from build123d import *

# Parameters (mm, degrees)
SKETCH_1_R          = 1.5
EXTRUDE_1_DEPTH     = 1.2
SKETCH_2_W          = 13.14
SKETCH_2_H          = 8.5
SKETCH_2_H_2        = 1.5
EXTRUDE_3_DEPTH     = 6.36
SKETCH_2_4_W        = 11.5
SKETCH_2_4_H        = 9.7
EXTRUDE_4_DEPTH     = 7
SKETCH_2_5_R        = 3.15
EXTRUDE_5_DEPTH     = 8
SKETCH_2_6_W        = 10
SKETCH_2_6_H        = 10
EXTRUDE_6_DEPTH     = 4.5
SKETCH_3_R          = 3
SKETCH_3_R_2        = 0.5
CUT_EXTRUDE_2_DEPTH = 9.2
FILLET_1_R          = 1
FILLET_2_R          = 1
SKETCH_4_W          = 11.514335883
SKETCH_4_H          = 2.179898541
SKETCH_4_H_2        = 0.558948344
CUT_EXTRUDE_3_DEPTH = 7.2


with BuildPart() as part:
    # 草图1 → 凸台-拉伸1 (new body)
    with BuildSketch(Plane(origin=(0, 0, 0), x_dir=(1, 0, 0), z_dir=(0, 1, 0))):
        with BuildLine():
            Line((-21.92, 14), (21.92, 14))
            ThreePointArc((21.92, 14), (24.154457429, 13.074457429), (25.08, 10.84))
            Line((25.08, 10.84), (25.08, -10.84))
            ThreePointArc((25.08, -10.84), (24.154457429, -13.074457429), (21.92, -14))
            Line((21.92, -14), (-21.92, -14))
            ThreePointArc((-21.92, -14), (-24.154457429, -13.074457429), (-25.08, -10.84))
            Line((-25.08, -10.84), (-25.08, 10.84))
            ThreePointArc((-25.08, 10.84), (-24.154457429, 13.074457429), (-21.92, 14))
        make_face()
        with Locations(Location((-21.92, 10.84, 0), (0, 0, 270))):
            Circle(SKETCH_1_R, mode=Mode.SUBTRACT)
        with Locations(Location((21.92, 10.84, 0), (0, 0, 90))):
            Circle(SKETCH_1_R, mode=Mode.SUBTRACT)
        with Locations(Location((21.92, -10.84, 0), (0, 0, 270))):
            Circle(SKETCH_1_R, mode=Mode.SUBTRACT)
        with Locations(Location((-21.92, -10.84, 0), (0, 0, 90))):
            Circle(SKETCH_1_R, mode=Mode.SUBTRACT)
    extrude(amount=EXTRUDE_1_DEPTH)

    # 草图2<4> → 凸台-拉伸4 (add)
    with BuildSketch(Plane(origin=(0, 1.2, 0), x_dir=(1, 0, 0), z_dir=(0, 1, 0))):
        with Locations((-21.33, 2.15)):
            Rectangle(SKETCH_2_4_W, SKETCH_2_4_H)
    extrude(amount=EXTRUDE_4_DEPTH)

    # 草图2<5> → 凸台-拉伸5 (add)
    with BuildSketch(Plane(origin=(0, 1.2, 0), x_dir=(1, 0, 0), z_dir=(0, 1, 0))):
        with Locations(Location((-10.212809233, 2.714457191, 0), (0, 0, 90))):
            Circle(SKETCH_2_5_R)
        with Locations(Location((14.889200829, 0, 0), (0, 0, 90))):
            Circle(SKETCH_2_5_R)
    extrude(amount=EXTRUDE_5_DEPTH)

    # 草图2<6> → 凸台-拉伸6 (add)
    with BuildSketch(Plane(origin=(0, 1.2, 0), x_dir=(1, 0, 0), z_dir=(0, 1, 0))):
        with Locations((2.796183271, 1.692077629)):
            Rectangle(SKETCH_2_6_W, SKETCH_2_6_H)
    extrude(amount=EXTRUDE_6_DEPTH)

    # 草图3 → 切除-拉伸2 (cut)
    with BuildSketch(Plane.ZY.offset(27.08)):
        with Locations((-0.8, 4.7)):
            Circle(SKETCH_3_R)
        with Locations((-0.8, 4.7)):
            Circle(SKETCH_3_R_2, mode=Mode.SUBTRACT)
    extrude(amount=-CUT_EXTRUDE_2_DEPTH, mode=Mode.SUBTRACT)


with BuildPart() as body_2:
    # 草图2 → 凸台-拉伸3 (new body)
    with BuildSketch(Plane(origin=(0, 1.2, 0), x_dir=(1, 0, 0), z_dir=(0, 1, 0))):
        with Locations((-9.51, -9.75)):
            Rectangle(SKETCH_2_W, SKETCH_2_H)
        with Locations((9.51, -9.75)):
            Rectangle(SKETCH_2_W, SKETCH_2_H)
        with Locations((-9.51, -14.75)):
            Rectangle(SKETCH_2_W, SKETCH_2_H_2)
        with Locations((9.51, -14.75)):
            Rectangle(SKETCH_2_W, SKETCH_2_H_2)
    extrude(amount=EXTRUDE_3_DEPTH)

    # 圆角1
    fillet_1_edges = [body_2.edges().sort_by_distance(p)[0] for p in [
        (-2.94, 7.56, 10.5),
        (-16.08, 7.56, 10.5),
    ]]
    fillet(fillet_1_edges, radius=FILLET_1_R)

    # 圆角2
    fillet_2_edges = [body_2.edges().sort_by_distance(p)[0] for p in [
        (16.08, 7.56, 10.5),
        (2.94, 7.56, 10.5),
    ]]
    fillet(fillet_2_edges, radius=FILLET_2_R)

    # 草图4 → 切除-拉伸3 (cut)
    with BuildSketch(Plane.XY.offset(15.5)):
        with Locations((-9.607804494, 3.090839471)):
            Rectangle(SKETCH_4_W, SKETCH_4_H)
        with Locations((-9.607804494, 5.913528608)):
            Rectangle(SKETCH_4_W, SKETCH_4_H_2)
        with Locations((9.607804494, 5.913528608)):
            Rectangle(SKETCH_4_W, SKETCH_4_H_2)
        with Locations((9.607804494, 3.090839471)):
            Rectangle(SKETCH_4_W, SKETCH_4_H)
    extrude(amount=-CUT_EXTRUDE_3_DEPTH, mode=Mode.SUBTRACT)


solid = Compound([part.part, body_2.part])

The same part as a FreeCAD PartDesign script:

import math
import FreeCAD as App
import Part
import Sketcher

V = App.Vector
Q = App.Units.Quantity


def edges_at(feature, points):
    """Names of the edges that pass closest to the given points."""
    edges = feature.Shape.Edges
    near = lambda p: min(range(len(edges)), key=lambda i: edges[i].distToShape(Part.Vertex(*p))[0])
    return sorted({f"Edge{near(p) + 1}" for p in points})

doc = App.newDocument("Part")
body = doc.addObject("PartDesign::Body", "Body")

# Sketch on XZ plane
sketch1 = doc.addObject("Sketcher::SketchObject", "Sketch")
body.addObject(sketch1)
sketch1.AttachmentSupport = (doc.XZ_Plane, [""])
sketch1.MapMode = "FlatFace"
sketch1.addGeometry([
    Part.LineSegment(V(21.92, -14, 0), V(-21.92, -14, 0)),  # 0
    Part.ArcOfCircle(Part.Circle(V(-21.92, -10.84, 0), V(0, 0, 1), 3.16), math.radians(180), math.radians(270)),  # 1
    Part.LineSegment(V(-25.08, -10.84, 0), V(-25.08, 10.84, 0)),  # 2
    Part.ArcOfCircle(Part.Circle(V(-21.92, 10.84, 0), V(0, 0, 1), 3.16), math.radians(90), math.radians(180)),  # 3
    Part.LineSegment(V(-21.92, 14, 0), V(21.92, 14, 0)),  # 4
    Part.ArcOfCircle(Part.Circle(V(21.92, 10.84, 0), V(0, 0, 1), 3.16), math.radians(0), math.radians(90)),  # 5
    Part.LineSegment(V(25.08, 10.84, 0), V(25.08, -10.84, 0)),  # 6
    Part.ArcOfCircle(Part.Circle(V(21.92, -10.84, 0), V(0, 0, 1), 3.16), math.radians(-90), math.radians(0)),  # 7
    Part.Circle(V(21.92, 10.84, 0), V(0, 0, 1), 1.5),  # 8
    Part.Circle(V(-21.92, 10.84, 0), V(0, 0, 1), 1.5),  # 9
    Part.Circle(V(21.92, -10.84, 0), V(0, 0, 1), 1.5),  # 10
    Part.Circle(V(-21.92, -10.84, 0), V(0, 0, 1), 1.5),  # 11
], False)
sketch1.addConstraint([
    Sketcher.Constraint("Tangent", 0, 2, 1, 2),
    Sketcher.Constraint("Tangent", 1, 1, 2, 1),
    Sketcher.Constraint("Tangent", 2, 2, 3, 2),
    Sketcher.Constraint("Tangent", 3, 1, 4, 1),
    Sketcher.Constraint("Tangent", 4, 2, 5, 2),
    Sketcher.Constraint("Tangent", 5, 1, 6, 1),
    Sketcher.Constraint("Tangent", 6, 2, 7, 2),
    Sketcher.Constraint("Tangent", 7, 1, 0, 1),
    Sketcher.Constraint("Horizontal", 0),
    Sketcher.Constraint("Vertical", 2),
    Sketcher.Constraint("Horizontal", 4),
    Sketcher.Constraint("Vertical", 6),
    Sketcher.Constraint("Coincident", 8, 3, 5, 3),
    Sketcher.Constraint("Coincident", 9, 3, 3, 3),
    Sketcher.Constraint("Coincident", 10, 3, 7, 3),
    Sketcher.Constraint("Coincident", 11, 3, 1, 3),
    Sketcher.Constraint("Equal", 1, 3),
    Sketcher.Constraint("Equal", 3, 5),
    Sketcher.Constraint("Equal", 5, 7),
    Sketcher.Constraint("Equal", 8, 9),
    Sketcher.Constraint("Equal", 9, 10),
    Sketcher.Constraint("Equal", 10, 11),
    Sketcher.Constraint("Symmetric", 1, 3, 5, 3, -1, 1),
    Sketcher.Constraint("Diameter", 8, Q("3 mm")),
    Sketcher.Constraint("Radius", 1, Q("3.16 mm")),
    Sketcher.Constraint("DistanceY", 0, 2, -1, 1, Q("14 mm")),
    Sketcher.Constraint("DistanceX", 0, 2, 0, 1, Q("43.84 mm")),
])
pad1 = doc.addObject("PartDesign::Pad", "Pad")
body.addObject(pad1)
pad1.Profile = sketch1
pad1.Length = 1.2
pad1.Reversed = True

# Sketch on XZ plane
sketch2 = doc.addObject("Sketcher::SketchObject", "Sketch001")
body.addObject(sketch2)
sketch2.AttachmentSupport = (doc.XZ_Plane, [""])
sketch2.MapMode = "FlatFace"
sketch2.AttachmentOffset = App.Placement(V(0, 0, -1.2), App.Rotation())
sketch2.addGeometry([
    Part.LineSegment(V(-27.08, -7, 0), V(-27.08, 2.7, 0)),
    Part.LineSegment(V(-27.08, 2.7, 0), V(-15.58, 2.7, 0)),
    Part.LineSegment(V(-15.58, 2.7, 0), V(-15.58, -7, 0)),
    Part.LineSegment(V(-15.58, -7, 0), V(-27.08, -7, 0)),
], False)
sketch2.addConstraint([
    Sketcher.Constraint("Coincident", 0, 2, 1, 1),
    Sketcher.Constraint("Coincident", 1, 2, 2, 1),
    Sketcher.Constraint("Coincident", 2, 2, 3, 1),
    Sketcher.Constraint("Coincident", 3, 2, 0, 1),
    Sketcher.Constraint("Vertical", 0),
    Sketcher.Constraint("Horizontal", 1),
    Sketcher.Constraint("Vertical", 2),
    Sketcher.Constraint("Horizontal", 3),
    Sketcher.Constraint("DistanceX", 1, 1, 1, 2, Q("11.5 mm")),
    Sketcher.Constraint("DistanceY", 0, 1, 0, 2, Q("9.7 mm")),
    Sketcher.Constraint("DistanceY", 2, 2, -1, 1, Q("7 mm")),
    Sketcher.Constraint("DistanceX", 0, 2, -1, 1, Q("27.08 mm")),
])
pad2 = doc.addObject("PartDesign::Pad", "Pad001")
body.addObject(pad2)
pad2.Profile = sketch2
pad2.Length = 7
pad2.Reversed = True

# Sketch on XZ plane
sketch3 = doc.addObject("Sketcher::SketchObject", "Sketch002")
body.addObject(sketch3)
sketch3.AttachmentSupport = (doc.XZ_Plane, [""])
sketch3.MapMode = "FlatFace"
sketch3.AttachmentOffset = App.Placement(V(0, 0, -1.2), App.Rotation())
sketch3.addGeometry([
    Part.Circle(V(-10.212809, -2.714457, 0), V(0, 0, 1), 3.15),
    Part.Circle(V(14.889201, 0, 0), V(0, 0, 1), 3.15),
], False)
sketch3.addConstraint([
    Sketcher.Constraint("Equal", 0, 1),
    Sketcher.Constraint("PointOnObject", 1, 3, -1),
    Sketcher.Constraint("Diameter", 0, Q("6.3 mm")),
    Sketcher.Constraint("DistanceX", -1, 1, 1, 3, Q("14.889201 mm")),
    Sketcher.Constraint("DistanceX", 0, 3, -1, 1, Q("10.212809 mm")),
    Sketcher.Constraint("DistanceY", 0, 3, -1, 1, Q("2.714457 mm")),
])
pad3 = doc.addObject("PartDesign::Pad", "Pad002")
body.addObject(pad3)
pad3.Profile = sketch3
pad3.Length = 8
pad3.Reversed = True

# Sketch on XZ plane
sketch4 = doc.addObject("Sketcher::SketchObject", "Sketch003")
body.addObject(sketch4)
sketch4.AttachmentSupport = (doc.XZ_Plane, [""])
sketch4.MapMode = "FlatFace"
sketch4.AttachmentOffset = App.Placement(V(0, 0, -1.2), App.Rotation())
sketch4.addGeometry([
    Part.LineSegment(V(-2.203817, -6.692078, 0), V(-2.203817, 3.307922, 0)),
    Part.LineSegment(V(-2.203817, 3.307922, 0), V(7.796183, 3.307922, 0)),
    Part.LineSegment(V(7.796183, 3.307922, 0), V(7.796183, -6.692078, 0)),
    Part.LineSegment(V(7.796183, -6.692078, 0), V(-2.203817, -6.692078, 0)),
], False)
sketch4.addConstraint([
    Sketcher.Constraint("Coincident", 0, 2, 1, 1),
    Sketcher.Constraint("Coincident", 1, 2, 2, 1),
    Sketcher.Constraint("Coincident", 2, 2, 3, 1),
    Sketcher.Constraint("Coincident", 3, 2, 0, 1),
    Sketcher.Constraint("Vertical", 0),
    Sketcher.Constraint("Horizontal", 1),
    Sketcher.Constraint("Vertical", 2),
    Sketcher.Constraint("Horizontal", 3),
    Sketcher.Constraint("Equal", 3, 0),
    Sketcher.Constraint("DistanceX", 1, 1, 1, 2, Q("10 mm")),
    Sketcher.Constraint("DistanceX", 0, 2, -1, 1, Q("2.203817 mm")),
    Sketcher.Constraint("DistanceY", -1, 1, 0, 2, Q("3.307922 mm")),
])
pad4 = doc.addObject("PartDesign::Pad", "Pad003")
body.addObject(pad4)
pad4.Profile = sketch4
pad4.Length = 4.5
pad4.Reversed = True

# Sketch on YZ plane
sketch5 = doc.addObject("Sketcher::SketchObject", "Sketch004")
body.addObject(sketch5)
sketch5.AttachmentSupport = (doc.YZ_Plane, [""])
sketch5.MapMode = "FlatFace"
sketch5.AttachmentOffset = App.Placement(V(0, 0, -27.08), App.Rotation())
sketch5.addGeometry([
    Part.Circle(V(4.7, -0.8, 0), V(0, 0, 1), 3),
    Part.Circle(V(4.7, -0.8, 0), V(0, 0, 1), 0.5),
], False)
sketch5.addConstraint([
    Sketcher.Constraint("Coincident", 1, 3, 0, 3),
    Sketcher.Constraint("Diameter", 0, Q("6 mm")),
    Sketcher.Constraint("Diameter", 1, Q("1 mm")),
    Sketcher.Constraint("DistanceX", -1, 1, 0, 3, Q("4.7 mm")),
    Sketcher.Constraint("DistanceY", 0, 3, -1, 1, Q("0.8 mm")),
])
pocket1 = doc.addObject("PartDesign::Pocket", "Pocket")
body.addObject(pocket1)
pocket1.Profile = sketch5
pocket1.Length = 9.2
pocket1.Reversed = True
body2 = doc.addObject("PartDesign::Body", "Body001")
body2.AllowCompound = True

# Sketch on XZ plane
sketch6 = doc.addObject("Sketcher::SketchObject", "Sketch005")
body2.addObject(sketch6)
sketch6.AttachmentSupport = (doc.getObject("XZ_Plane001"), [""])
sketch6.MapMode = "FlatFace"
sketch6.AttachmentOffset = App.Placement(V(0, 0, -1.2), App.Rotation())
sketch6.addGeometry([
    Part.LineSegment(V(-16.08, 5.5, 0), V(-16.08, 15.5, 0)),  # 0
    Part.LineSegment(V(-16.08, 15.5, 0), V(-2.94, 15.5, 0)),  # 1
    Part.LineSegment(V(-2.94, 15.5, 0), V(-2.94, 5.5, 0)),  # 2
    Part.LineSegment(V(-2.94, 5.5, 0), V(-16.08, 5.5, 0)),  # 3
    Part.LineSegment(V(2.94, 5.5, 0), V(2.94, 15.5, 0)),  # 4
    Part.LineSegment(V(2.94, 15.5, 0), V(16.08, 15.5, 0)),  # 5
    Part.LineSegment(V(16.08, 15.5, 0), V(16.08, 5.5, 0)),  # 6
    Part.LineSegment(V(16.08, 5.5, 0), V(2.94, 5.5, 0)),  # 7
], False)
sketch6.addConstraint([
    Sketcher.Constraint("Coincident", 0, 2, 1, 1),
    Sketcher.Constraint("Coincident", 1, 2, 2, 1),
    Sketcher.Constraint("Coincident", 2, 2, 3, 1),
    Sketcher.Constraint("Coincident", 3, 2, 0, 1),
    Sketcher.Constraint("Coincident", 4, 2, 5, 1),
    Sketcher.Constraint("Coincident", 5, 2, 6, 1),
    Sketcher.Constraint("Coincident", 6, 2, 7, 1),
    Sketcher.Constraint("Coincident", 7, 2, 4, 1),
    Sketcher.Constraint("Vertical", 0),
    Sketcher.Constraint("Horizontal", 1),
    Sketcher.Constraint("Vertical", 2),
    Sketcher.Constraint("Horizontal", 3),
    Sketcher.Constraint("Vertical", 4),
    Sketcher.Constraint("Horizontal", 5),
    Sketcher.Constraint("Vertical", 6),
    Sketcher.Constraint("Horizontal", 7),
    Sketcher.Constraint("Symmetric", 1, 2, 4, 2, -2),
    Sketcher.Constraint("Symmetric", 3, 2, 6, 2, -2),
    Sketcher.Constraint("DistanceY", 0, 1, 0, 2, Q("10 mm")),
    Sketcher.Constraint("DistanceX", 1, 1, 1, 2, Q("13.14 mm")),
    Sketcher.Constraint("DistanceY", -1, 1, 0, 2, Q("15.5 mm")),
    Sketcher.Constraint("DistanceX", 0, 2, -1, 1, Q("16.08 mm")),
])
pad5 = doc.addObject("PartDesign::Pad", "Pad004")
body2.addObject(pad5)
pad5.Profile = sketch6
pad5.Length = 6.36
pad5.Reversed = True
doc.recompute()

fillet = doc.addObject("PartDesign::Fillet", "Fillet")
body2.addObject(fillet)
fillet.Base = (pad5, edges_at(pad5, [(-2.94, 7.56, 10.5), (-16.08, 7.56, 10.5)]))
fillet.Radius = 1
doc.recompute()

fillet2 = doc.addObject("PartDesign::Fillet", "Fillet001")
body2.addObject(fillet2)
fillet2.Base = (fillet, edges_at(fillet, [(16.08, 7.56, 10.5), (2.94, 7.56, 10.5)]))
fillet2.Radius = 1

# Sketch on XY plane
sketch7 = doc.addObject("Sketcher::SketchObject", "Sketch006")
body2.addObject(sketch7)
sketch7.AttachmentSupport = (doc.getObject("XY_Plane001"), [""])
sketch7.MapMode = "FlatFace"
sketch7.AttachmentOffset = App.Placement(V(0, 0, 15.5), App.Rotation())
sketch7.addGeometry([
    Part.LineSegment(V(-15.364972, 4.180789, 0), V(-15.364972, 2.00089, 0)),  # 0
    Part.LineSegment(V(-15.364972, 2.00089, 0), V(-3.850637, 2.00089, 0)),  # 1
    Part.LineSegment(V(-3.850637, 2.00089, 0), V(-3.850637, 4.180789, 0)),  # 2
    Part.LineSegment(V(-3.850637, 4.180789, 0), V(-15.364972, 4.180789, 0)),  # 3
    Part.LineSegment(V(-15.364972, 6.193003, 0), V(-15.364972, 5.634054, 0)),  # 4
    Part.LineSegment(V(-15.364972, 5.634054, 0), V(-3.850637, 5.634054, 0)),  # 5
    Part.LineSegment(V(-3.850637, 5.634054, 0), V(-3.850637, 6.193003, 0)),  # 6
    Part.LineSegment(V(-3.850637, 6.193003, 0), V(-15.364972, 6.193003, 0)),  # 7
    Part.LineSegment(V(3.850637, 6.193003, 0), V(3.850637, 5.634054, 0)),  # 8
    Part.LineSegment(V(3.850637, 5.634054, 0), V(15.364972, 5.634054, 0)),  # 9
    Part.LineSegment(V(15.364972, 5.634054, 0), V(15.364972, 6.193003, 0)),  # 10
    Part.LineSegment(V(15.364972, 6.193003, 0), V(3.850637, 6.193003, 0)),  # 11
    Part.LineSegment(V(3.850637, 4.180789, 0), V(3.850637, 2.00089, 0)),  # 12
    Part.LineSegment(V(3.850637, 2.00089, 0), V(15.364972, 2.00089, 0)),  # 13
    Part.LineSegment(V(15.364972, 2.00089, 0), V(15.364972, 4.180789, 0)),  # 14
    Part.LineSegment(V(15.364972, 4.180789, 0), V(3.850637, 4.180789, 0)),  # 15
], False)
sketch7.addConstraint([
    Sketcher.Constraint("Coincident", 0, 2, 1, 1),
    Sketcher.Constraint("Coincident", 1, 2, 2, 1),
    Sketcher.Constraint("Coincident", 2, 2, 3, 1),
    Sketcher.Constraint("Coincident", 3, 2, 0, 1),
    Sketcher.Constraint("Coincident", 4, 2, 5, 1),
    Sketcher.Constraint("Coincident", 5, 2, 6, 1),
    Sketcher.Constraint("Coincident", 6, 2, 7, 1),
    Sketcher.Constraint("Coincident", 7, 2, 4, 1),
    Sketcher.Constraint("Coincident", 8, 2, 9, 1),
    Sketcher.Constraint("Coincident", 9, 2, 10, 1),
    Sketcher.Constraint("Coincident", 10, 2, 11, 1),
    Sketcher.Constraint("Coincident", 11, 2, 8, 1),
    Sketcher.Constraint("Coincident", 12, 2, 13, 1),
    Sketcher.Constraint("Coincident", 13, 2, 14, 1),
    Sketcher.Constraint("Coincident", 14, 2, 15, 1),
    Sketcher.Constraint("Coincident", 15, 2, 12, 1),
    Sketcher.Constraint("Vertical", 0),
    Sketcher.Constraint("Horizontal", 1),
    Sketcher.Constraint("Vertical", 2),
    Sketcher.Constraint("Horizontal", 3),
    Sketcher.Constraint("Vertical", 4),
    Sketcher.Constraint("Horizontal", 5),
    Sketcher.Constraint("Vertical", 6),
    Sketcher.Constraint("Horizontal", 7),
    Sketcher.Constraint("Vertical", 8),
    Sketcher.Constraint("Horizontal", 9),
    Sketcher.Constraint("Vertical", 10),
    Sketcher.Constraint("Horizontal", 11),
    Sketcher.Constraint("Vertical", 12),
    Sketcher.Constraint("Horizontal", 13),
    Sketcher.Constraint("Vertical", 14),
    Sketcher.Constraint("Horizontal", 15),
    Sketcher.Constraint("Symmetric", 5, 2, 8, 2, -2),
    Sketcher.Constraint("Symmetric", 7, 2, 10, 2, -2),
    Sketcher.Constraint("Symmetric", 1, 2, 12, 2, -2),
    Sketcher.Constraint("Symmetric", 3, 2, 14, 2, -2),
    Sketcher.Constraint("Vertical", 3, 2, 4, 2),
    Sketcher.Constraint("Vertical", 2, 2, 5, 2),
    Sketcher.Constraint("DistanceY", 0, 2, 0, 1, Q("2.179899 mm")),
    Sketcher.Constraint("DistanceY", 4, 2, 4, 1, Q("0.558948 mm")),
    Sketcher.Constraint("DistanceX", 1, 1, 1, 2, Q("11.514336 mm")),
    Sketcher.Constraint("DistanceY", -1, 1, 0, 2, Q("2.00089 mm")),
    Sketcher.Constraint("DistanceX", 4, 2, 8, 2, Q("19.215609 mm")),
    Sketcher.Constraint("DistanceY", -1, 1, 4, 2, Q("5.634054 mm")),
])
pocket2 = doc.addObject("PartDesign::Pocket", "Pocket001")
body2.addObject(pocket2)
pocket2.Profile = sketch7
pocket2.Length = 7.2

doc.recompute()
